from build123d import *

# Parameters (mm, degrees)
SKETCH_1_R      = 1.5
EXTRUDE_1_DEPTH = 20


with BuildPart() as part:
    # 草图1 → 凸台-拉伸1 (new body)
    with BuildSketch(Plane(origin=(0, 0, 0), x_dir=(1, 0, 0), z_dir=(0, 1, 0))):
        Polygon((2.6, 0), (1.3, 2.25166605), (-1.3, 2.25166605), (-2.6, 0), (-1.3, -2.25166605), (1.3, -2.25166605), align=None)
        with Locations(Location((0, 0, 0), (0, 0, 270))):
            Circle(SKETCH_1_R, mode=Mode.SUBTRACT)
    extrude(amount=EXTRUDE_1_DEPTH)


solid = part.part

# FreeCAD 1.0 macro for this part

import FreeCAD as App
import Part
import Sketcher

V = App.Vector
Q = App.Units.Quantity


def add_polygon(sketch, points):
    """Adds a closed chain of lines whose ends are joined by coincident constraints."""
    first, n = sketch.GeometryCount, len(points)
    for a, b in zip(points, points[1:] + points[:1]):
        sketch.addGeometry(Part.LineSegment(App.Vector(*a, 0), App.Vector(*b, 0)), False)
    for i in range(n):
        sketch.addConstraint(Sketcher.Constraint("Coincident", first + i, 2, first + (i + 1) % n, 1))

doc = App.newDocument("Part")
body = doc.addObject("PartDesign::Body", "Body")

# Sketch on XZ plane
sketch1 = doc.addObject("Sketcher::SketchObject", "Sketch")
body.addObject(sketch1)
sketch1.AttachmentSupport = (doc.XZ_Plane, [""])
sketch1.MapMode = "FlatFace"
add_polygon(sketch1, [(2.6, 0), (1.3, -2.3), (-1.3, -2.3), (-2.6, 0), (-1.3, 2.3), (1.3, 2.3)])  # lines 0-5
sketch1.addGeometry(Part.Circle(V(0, 0, 0), V(0, 0, 1), 1.5), False)  # 6
sketch1.addConstraint([
    Sketcher.Constraint("Horizontal", 1),
    Sketcher.Constraint("Horizontal", 4),
    Sketcher.Constraint("Coincident", 6, 3, -1, 1),
    Sketcher.Constraint("Symmetric", 0, 2, 3, 2, -1, 1),
    Sketcher.Constraint("Symmetric", 2, 2, 5, 2, -1, 1),
    Sketcher.Constraint("PointOnObject", 2, 2, -1),
    Sketcher.Constraint("Parallel", 2, 5),
    Sketcher.Constraint("Vertical", 1, 2, 3, 2),
    Sketcher.Constraint("Diameter", 6, 3.0),
    Sketcher.Constraint("Angle", 0, Q("-120 deg")),
    Sketcher.Constraint("DistanceX", 1, 2, 1, 1, 2.6),
    Sketcher.Constraint("Distance", 0, 2.6),
])
pad1 = doc.addObject("PartDesign::Pad", "Pad")
body.addObject(pad1)
pad1.Profile = sketch1
pad1.Length = 20
pad1.Reversed = True

doc.recompute()
